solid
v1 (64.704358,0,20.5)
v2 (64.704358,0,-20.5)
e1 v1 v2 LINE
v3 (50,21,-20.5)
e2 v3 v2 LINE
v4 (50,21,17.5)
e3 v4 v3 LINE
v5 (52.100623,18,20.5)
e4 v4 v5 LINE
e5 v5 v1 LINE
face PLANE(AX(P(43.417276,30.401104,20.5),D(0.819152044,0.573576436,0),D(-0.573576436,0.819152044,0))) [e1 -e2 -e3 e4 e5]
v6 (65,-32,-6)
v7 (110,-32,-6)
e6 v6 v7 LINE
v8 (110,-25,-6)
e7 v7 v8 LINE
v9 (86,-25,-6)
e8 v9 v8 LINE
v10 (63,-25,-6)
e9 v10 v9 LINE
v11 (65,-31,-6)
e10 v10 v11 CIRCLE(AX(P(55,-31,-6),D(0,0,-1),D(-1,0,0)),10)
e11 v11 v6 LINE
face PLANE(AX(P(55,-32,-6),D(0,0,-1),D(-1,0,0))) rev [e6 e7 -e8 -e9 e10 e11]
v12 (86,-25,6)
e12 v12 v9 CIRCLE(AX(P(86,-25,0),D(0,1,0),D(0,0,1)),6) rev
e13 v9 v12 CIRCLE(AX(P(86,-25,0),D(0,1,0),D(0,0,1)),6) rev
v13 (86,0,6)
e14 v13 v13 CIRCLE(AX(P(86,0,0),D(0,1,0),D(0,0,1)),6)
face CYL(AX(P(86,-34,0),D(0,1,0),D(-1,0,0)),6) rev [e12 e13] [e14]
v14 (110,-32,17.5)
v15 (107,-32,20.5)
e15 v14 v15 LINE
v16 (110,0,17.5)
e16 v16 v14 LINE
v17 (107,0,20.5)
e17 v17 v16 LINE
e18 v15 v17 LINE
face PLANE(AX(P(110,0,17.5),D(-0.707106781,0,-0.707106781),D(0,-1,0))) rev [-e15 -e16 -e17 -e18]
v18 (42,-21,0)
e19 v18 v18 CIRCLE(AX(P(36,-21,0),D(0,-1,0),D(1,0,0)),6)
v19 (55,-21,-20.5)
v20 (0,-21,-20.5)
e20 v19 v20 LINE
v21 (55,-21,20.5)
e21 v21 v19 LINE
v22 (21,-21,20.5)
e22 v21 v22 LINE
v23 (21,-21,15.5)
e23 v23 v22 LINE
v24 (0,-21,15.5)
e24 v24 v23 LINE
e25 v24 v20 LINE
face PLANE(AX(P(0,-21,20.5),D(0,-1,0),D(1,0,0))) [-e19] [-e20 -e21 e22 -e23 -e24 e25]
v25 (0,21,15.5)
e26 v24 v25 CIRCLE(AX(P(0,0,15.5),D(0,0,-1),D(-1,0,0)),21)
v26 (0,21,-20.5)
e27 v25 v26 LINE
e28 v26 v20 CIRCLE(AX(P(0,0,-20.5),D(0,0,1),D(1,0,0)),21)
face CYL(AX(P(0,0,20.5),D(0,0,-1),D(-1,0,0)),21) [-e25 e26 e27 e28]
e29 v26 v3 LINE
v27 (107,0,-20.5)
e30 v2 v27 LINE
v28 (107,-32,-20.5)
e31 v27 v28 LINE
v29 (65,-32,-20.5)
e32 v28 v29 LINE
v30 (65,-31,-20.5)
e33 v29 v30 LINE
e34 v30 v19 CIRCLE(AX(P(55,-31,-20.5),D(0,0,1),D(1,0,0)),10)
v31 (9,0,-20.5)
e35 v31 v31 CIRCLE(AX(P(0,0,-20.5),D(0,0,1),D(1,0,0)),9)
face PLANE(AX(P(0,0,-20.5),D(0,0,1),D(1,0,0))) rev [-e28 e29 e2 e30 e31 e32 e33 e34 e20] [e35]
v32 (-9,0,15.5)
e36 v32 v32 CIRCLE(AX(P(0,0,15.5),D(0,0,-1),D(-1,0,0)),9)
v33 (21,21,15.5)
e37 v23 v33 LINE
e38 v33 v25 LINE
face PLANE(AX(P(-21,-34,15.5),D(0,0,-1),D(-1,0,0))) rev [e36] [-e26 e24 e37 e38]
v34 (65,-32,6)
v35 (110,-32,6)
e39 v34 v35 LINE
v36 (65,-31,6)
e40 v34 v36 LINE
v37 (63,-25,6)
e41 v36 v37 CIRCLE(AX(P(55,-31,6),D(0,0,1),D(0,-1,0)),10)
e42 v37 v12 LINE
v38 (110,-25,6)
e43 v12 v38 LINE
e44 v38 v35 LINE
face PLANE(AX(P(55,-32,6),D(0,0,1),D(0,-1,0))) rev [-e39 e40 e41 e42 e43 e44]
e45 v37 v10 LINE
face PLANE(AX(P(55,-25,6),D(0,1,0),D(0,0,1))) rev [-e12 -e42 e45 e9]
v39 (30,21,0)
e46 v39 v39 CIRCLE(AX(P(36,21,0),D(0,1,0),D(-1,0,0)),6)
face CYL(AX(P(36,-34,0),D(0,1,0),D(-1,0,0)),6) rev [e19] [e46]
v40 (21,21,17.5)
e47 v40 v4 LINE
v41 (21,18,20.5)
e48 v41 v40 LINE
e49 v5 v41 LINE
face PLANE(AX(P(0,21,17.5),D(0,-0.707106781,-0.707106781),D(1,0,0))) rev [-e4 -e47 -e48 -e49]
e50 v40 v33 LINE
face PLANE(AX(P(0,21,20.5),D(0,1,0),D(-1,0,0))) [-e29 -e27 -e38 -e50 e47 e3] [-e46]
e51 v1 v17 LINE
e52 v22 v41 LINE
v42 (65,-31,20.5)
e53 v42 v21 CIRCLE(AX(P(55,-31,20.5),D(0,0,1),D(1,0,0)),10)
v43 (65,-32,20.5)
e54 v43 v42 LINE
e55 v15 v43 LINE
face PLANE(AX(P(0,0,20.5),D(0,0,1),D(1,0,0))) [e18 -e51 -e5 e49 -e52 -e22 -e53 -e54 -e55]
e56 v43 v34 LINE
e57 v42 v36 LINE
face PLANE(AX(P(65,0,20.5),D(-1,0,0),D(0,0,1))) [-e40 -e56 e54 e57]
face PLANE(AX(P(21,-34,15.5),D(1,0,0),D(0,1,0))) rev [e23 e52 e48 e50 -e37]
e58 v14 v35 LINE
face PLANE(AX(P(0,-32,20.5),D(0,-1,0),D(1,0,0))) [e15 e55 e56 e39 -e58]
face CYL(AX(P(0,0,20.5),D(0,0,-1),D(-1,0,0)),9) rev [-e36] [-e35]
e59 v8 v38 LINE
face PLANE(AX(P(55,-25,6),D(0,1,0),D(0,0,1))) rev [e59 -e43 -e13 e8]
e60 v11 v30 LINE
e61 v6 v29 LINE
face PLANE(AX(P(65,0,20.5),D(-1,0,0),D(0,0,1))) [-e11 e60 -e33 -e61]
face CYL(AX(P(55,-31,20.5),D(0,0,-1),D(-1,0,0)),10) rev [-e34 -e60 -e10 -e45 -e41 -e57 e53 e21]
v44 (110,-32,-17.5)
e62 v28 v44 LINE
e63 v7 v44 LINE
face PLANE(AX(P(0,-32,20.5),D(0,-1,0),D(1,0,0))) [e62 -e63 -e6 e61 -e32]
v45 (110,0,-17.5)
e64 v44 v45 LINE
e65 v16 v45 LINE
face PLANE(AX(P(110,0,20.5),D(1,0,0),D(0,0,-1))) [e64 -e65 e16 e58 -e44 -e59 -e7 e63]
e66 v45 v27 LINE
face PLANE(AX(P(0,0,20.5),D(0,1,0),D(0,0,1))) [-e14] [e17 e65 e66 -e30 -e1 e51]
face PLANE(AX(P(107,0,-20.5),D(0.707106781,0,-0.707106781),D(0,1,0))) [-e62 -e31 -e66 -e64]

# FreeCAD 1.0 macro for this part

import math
import FreeCAD as App
import Part
import Sketcher
Q = App.Units.Quantity


def edges_at(feature, points):
    """Names of the edges that pass closest to the given points."""
    edges = feature.Shape.Edges
    near = lambda p: min(range(len(edges)), key=lambda i: edges[i].distToShape(Part.Vertex(*p))[0])
    return sorted({f"Edge{near(p) + 1}" for p in points})


def add_polygon(sketch, points):
    """Adds a closed chain of lines whose ends are joined by coincident constraints."""
    first, n = sketch.GeometryCount, len(points)
    for a, b in zip(points, points[1:] + points[:1]):
        sketch.addGeometry(Part.LineSegment(App.Vector(*a, 0), App.Vector(*b, 0)), False)
    for i in range(n):
        sketch.addConstraint(Sketcher.Constraint("Coincident", first + i, 2, first + (i + 1) % n, 1))

doc = App.newDocument("Part")
params = doc.addObject("Spreadsheet::Sheet", "Params")
for row, (alias, value) in enumerate([
    ("sketch1_diameter", "18 mm"),
    ("sketch1_radius", "21 mm"),
    ("sketch1_radius2", "10 mm"),
    ("sketch1_width", "50 mm"),
    ("sketch1_width2", "55 mm"),
    ("pad1_length", "41 mm"),
    ("sketch2_diameter", "12 mm"),
    ("sketch2_width", "42 mm"),
    ("sketch2_height", "5 mm"),
    ("pocket1_length", "55 mm"),
    ("sketch3_width", "7 mm"),
    ("sketch3_height", "12 mm"),
    ("pocket2_length", "55 mm"),
    ("chamfer_size", "3 mm"),
], start=1):
    params.set(f"A{row}", alias)
    params.set(f"B{row}", "=" + value)
    params.setAlias(f"B{row}", alias)

body = doc.addObject("PartDesign::Body", "Body")

# Sketch on XY plane
sketch1 = body.newObject("Sketcher::SketchObject", "Sketch")
sketch1.AttachmentSupport = (doc.getObject("XY_Plane"), [""])
sketch1.MapMode = "FlatFace"
sketch1.addGeometry([
    Part.LineSegment(App.Vector(50, 21, 0), App.Vector(0, 21, 0)),  # 0
    Part.ArcOfCircle(Part.Circle(App.Vector(0, 0, 0), App.Vector(0, 0, 1), 21), math.radians(90), math.radians(270)),  # 1
    Part.LineSegment(App.Vector(0, -21, 0), App.Vector(55, -21, 0)),  # 2
    Part.ArcOfCircle(Part.Circle(App.Vector(55, -31, 0), App.Vector(0, 0, 1), 10), math.radians(0), math.radians(90)),  # 3
    Part.LineSegment(App.Vector(65, -31, 0), App.Vector(65, -32, 0)),  # 4
    Part.LineSegment(App.Vector(65, -32, 0), App.Vector(110, -32, 0)),  # 5
    Part.LineSegment(App.Vector(110, -32, 0), App.Vector(110, 0, 0)),  # 6
    Part.LineSegment(App.Vector(110, 0, 0), App.Vector(64.7, 0, 0)),  # 7
    Part.LineSegment(App.Vector(64.7, 0, 0), App.Vector(50, 21, 0)),  # 8
    Part.Circle(App.Vector(0, 0, 0), App.Vector(0, 0, 1), 9),  # 9
], False)
sketch1.addConstraint([
    Sketcher.Constraint("Tangent", 0, 2, 1, 1),
    Sketcher.Constraint("Tangent", 1, 2, 2, 1),
    Sketcher.Constraint("Tangent", 2, 2, 3, 2),
    Sketcher.Constraint("Tangent", 3, 1, 4, 1),
    Sketcher.Constraint("Coincident", 4, 2, 5, 1),
    Sketcher.Constraint("Coincident", 5, 2, 6, 1),
    Sketcher.Constraint("Coincident", 6, 2, 7, 1),
    Sketcher.Constraint("Coincident", 7, 2, 8, 1),
    Sketcher.Constraint("Coincident", 8, 2, 0, 1),
    Sketcher.Constraint("Horizontal", 0),
    Sketcher.Constraint("Horizontal", 2),
    Sketcher.Constraint("Vertical", 4),
    Sketcher.Constraint("Horizontal", 5),
    Sketcher.Constraint("Vertical", 6),
    Sketcher.Constraint("Horizontal", 7),
    Sketcher.Constraint("Coincident", 1, 3, -1, 1),
    Sketcher.Constraint("Coincident", 9, 3, -1, 1),
    Sketcher.Constraint("PointOnObject", 6, 2, -1),
    Sketcher.Constraint("Diameter", 9, Q("18 mm")),
    Sketcher.Constraint("Radius", 1, Q("21 mm")),
    Sketcher.Constraint("Radius", 3, Q("10 mm")),
    Sketcher.Constraint("DistanceX", 0, 2, 0, 1, Q("50 mm")),
    Sketcher.Constraint("DistanceX", 2, 1, 2, 2, Q("55 mm")),
    Sketcher.Constraint("DistanceX", 5, 1, 5, 2, Q("45 mm")),
    Sketcher.Constraint("DistanceY", 4, 2, 4, 1, Q("1 mm")),
    Sketcher.Constraint("Angle", 8, Q("125 deg")),
])
sketch1.setExpression("Constraints[18]", "Params.sketch1_diameter")
sketch1.setExpression("Constraints[19]", "Params.sketch1_radius")
sketch1.setExpression("Constraints[20]", "Params.sketch1_radius2")
sketch1.setExpression("Constraints[21]", "Params.sketch1_width")
sketch1.setExpression("Constraints[22]", "Params.sketch1_width2")
pad1 = body.newObject("PartDesign::Pad", "Pad")
pad1.Profile = sketch1
pad1.setExpression("Length", "Params.pad1_length")
pad1.Midplane = True

# Sketch on XZ plane
sketch2 = body.newObject("Sketcher::SketchObject", "Sketch001")
sketch2.AttachmentSupport = (doc.getObject("XZ_Plane"), [""])
sketch2.MapMode = "FlatFace"
sketch2.AttachmentOffset = App.Placement(App.Vector(0, 0, -21), App.Rotation())
sketch2.addGeometry(Part.Circle(App.Vector(36, 0, 0), App.Vector(0, 0, 1), 6), False)  # 0
sketch2.addGeometry(Part.Circle(App.Vector(86, 0, 0), App.Vector(0, 0, 1), 6), False)  # 1
add_polygon(sketch2, [(-21, 16), (-21, 20), (21, 20), (21, 16)])  # lines 2-5
sketch2.addConstraint([
    Sketcher.Constraint("Vertical", 2),
    Sketcher.Constraint("Horizontal", 3),
    Sketcher.Constraint("Vertical", 4),
    Sketcher.Constraint("Horizontal", 5),
    Sketcher.Constraint("Equal", 0, 1),
    Sketcher.Constraint("PointOnObject", 0, 3, -1),
    Sketcher.Constraint("PointOnObject", 1, 3, -1),
    Sketcher.Constraint("Diameter", 0, Q("12 mm")),
    Sketcher.Constraint("DistanceX", 3, 1, 3, 2, Q("42 mm")),
    Sketcher.Constraint("DistanceY", 2, 1, 2, 2, Q("5 mm")),
    Sketcher.Constraint("DistanceX", -1, 1, 0, 3, Q("36 mm")),
    Sketcher.Constraint("DistanceX", -1, 1, 1, 3, Q("86 mm")),
    Sketcher.Constraint("DistanceX", 2, 2, -1, 1, Q("21 mm")),
    Sketcher.Constraint("DistanceY", -1, 1, 2, 2, Q("20.5 mm")),
])
sketch2.setExpression("Constraints[11]", "Params.sketch2_diameter")
sketch2.setExpression("Constraints[12]", "Params.sketch2_width")
sketch2.setExpression("Constraints[13]", "Params.sketch2_height")
pocket1 = body.newObject("PartDesign::Pocket", "Pocket")
pocket1.Profile = sketch2
pocket1.setExpression("Length", "Params.pocket1_length")
pocket1.Reversed = True

# Sketch on YZ plane
sketch3 = body.newObject("Sketcher::SketchObject", "Sketch002")
sketch3.AttachmentSupport = (doc.getObject("YZ_Plane"), [""])
sketch3.MapMode = "FlatFace"
sketch3.AttachmentOffset = App.Placement(App.Vector(0, 0, 110), App.Rotation())
add_polygon(sketch3, [(-25, 6), (-32, 6), (-32, -6), (-25, -6)])  # lines 0-3
sketch3.addConstraint([
    Sketcher.Constraint("Horizontal", 0),
    Sketcher.Constraint("Vertical", 1),
    Sketcher.Constraint("Horizontal", 2),
    Sketcher.Constraint("Vertical", 3),
    Sketcher.Constraint("DistanceX", 0, 2, 0, 1, Q("7 mm")),
    Sketcher.Constraint("DistanceY", 1, 2, 1, 1, Q("12 mm")),
    Sketcher.Constraint("DistanceX", 0, 2, -1, 1, Q("32 mm")),
    Sketcher.Constraint("DistanceY", -1, 1, 0, 2, Q("6 mm")),
])
sketch3.setExpression("Constraints[8]", "Params.sketch3_width")
sketch3.setExpression("Constraints[9]", "Params.sketch3_height")
pocket2 = body.newObject("PartDesign::Pocket", "Pocket001")
pocket2.Profile = sketch3
pocket2.setExpression("Length", "Params.pocket2_length")
doc.recompute()

chamfer = body.newObject("PartDesign::Chamfer", "Chamfer")
chamfer.Base = (pocket2, edges_at(pocket2, [(110, -16, -20.5), (110, -16, 20.5), (35.5, 21, 20.5)]))
chamfer.setExpression("Size", "Params.chamfer_size")

doc.recompute()
